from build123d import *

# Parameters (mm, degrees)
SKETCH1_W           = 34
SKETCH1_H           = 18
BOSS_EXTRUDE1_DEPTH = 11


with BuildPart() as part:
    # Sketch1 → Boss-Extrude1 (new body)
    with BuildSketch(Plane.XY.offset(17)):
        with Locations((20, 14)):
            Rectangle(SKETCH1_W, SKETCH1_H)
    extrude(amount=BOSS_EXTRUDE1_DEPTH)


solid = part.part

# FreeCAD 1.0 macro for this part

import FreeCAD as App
import Part
import Sketcher
Q = App.Units.Quantity


def add_polygon(sketch, points):
    """Adds a closed chain of lines whose ends are joined by coincident constraints."""
    first, n = sketch.GeometryCount, len(points)
    for a, b in zip(points, points[1:] + points[:1]):
        sketch.addGeometry(Part.LineSegment(App.Vector(*a, 0), App.Vector(*b, 0)), False)
    for i in range(n):
        sketch.addConstraint(Sketcher.Constraint("Coincident", first + i, 2, first + (i + 1) % n, 1))

doc = App.newDocument("Part")
params = doc.addObject("Spreadsheet::Sheet", "Params")
for row, (alias, value) in enumerate([
    ("sketch1_width", "34 mm"),
    ("sketch1_height", "18 mm"),
    ("pad1_length", "11 mm"),
], start=1):
    params.set(f"A{row}", alias)
    params.set(f"B{row}", "=" + value)
    params.setAlias(f"B{row}", alias)

body = doc.addObject("PartDesign::Body", "Body")

# Sketch on XY plane
sketch1 = body.newObject("Sketcher::SketchObject", "Sketch")
sketch1.AttachmentSupport = (doc.getObject("XY_Plane"), [""])
sketch1.MapMode = "FlatFace"
sketch1.AttachmentOffset = App.Placement(App.Vector(0, 0, 17), App.Rotation())
add_polygon(sketch1, [(3, 23), (3, 5), (37, 5), (37, 23)])  # lines 0-3
sketch1.addConstraint([
    Sketcher.Constraint("Vertical", 0),
    Sketcher.Constraint("Horizontal", 1),
    Sketcher.Constraint("Vertical", 2),
    Sketcher.Constraint("Horizontal", 3),
    Sketcher.Constraint("DistanceX", 1, 1, 1, 2, Q("34 mm")),
    Sketcher.Constraint("DistanceY", 0, 2, 0, 1, Q("18 mm")),
    Sketcher.Constraint("DistanceX", -1, 1, 0, 2, Q("3 mm")),
    Sketcher.Constraint("DistanceY", -1, 1, 0, 2, Q("5 mm")),
])
sketch1.setExpression("Constraints[8]", "Params.sketch1_width")
sketch1.setExpression("Constraints[9]", "Params.sketch1_height")
pad1 = body.newObject("PartDesign::Pad", "Pad")
pad1.Profile = sketch1
pad1.setExpression("Length", "Params.pad1_length")

doc.recompute()
